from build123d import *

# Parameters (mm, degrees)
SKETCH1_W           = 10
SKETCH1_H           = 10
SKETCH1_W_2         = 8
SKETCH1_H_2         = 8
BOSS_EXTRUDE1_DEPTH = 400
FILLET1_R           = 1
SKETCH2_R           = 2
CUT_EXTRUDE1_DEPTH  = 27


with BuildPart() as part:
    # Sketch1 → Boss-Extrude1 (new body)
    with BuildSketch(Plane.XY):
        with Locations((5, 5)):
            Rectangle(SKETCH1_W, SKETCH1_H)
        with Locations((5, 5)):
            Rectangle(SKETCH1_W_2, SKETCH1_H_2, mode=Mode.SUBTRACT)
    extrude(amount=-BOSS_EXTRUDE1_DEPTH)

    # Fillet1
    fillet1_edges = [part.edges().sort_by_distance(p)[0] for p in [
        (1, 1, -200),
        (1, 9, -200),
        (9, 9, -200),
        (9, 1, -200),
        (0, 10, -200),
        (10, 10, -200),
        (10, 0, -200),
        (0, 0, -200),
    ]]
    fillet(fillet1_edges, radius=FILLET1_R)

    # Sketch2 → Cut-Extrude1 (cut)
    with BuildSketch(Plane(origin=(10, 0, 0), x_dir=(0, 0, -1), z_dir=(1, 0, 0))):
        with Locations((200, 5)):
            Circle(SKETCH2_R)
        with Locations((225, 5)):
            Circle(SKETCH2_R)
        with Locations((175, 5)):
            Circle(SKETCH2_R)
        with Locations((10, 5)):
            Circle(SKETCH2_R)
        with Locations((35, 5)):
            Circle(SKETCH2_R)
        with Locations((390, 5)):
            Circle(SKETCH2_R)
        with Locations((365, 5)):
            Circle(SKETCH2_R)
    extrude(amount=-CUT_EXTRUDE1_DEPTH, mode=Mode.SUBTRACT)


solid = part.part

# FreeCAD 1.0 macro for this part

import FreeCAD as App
import Part
import Sketcher

V = App.Vector
Q = App.Units.Quantity


def edges_at(feature, points):
    """Names of the edges that pass closest to the given points."""
    edges = feature.Shape.Edges
    near = lambda p: min(range(len(edges)), key=lambda i: edges[i].distToShape(Part.Vertex(*p))[0])
    return sorted({f"Edge{near(p) + 1}" for p in points})

doc = App.newDocument("Part")
body = doc.addObject("PartDesign::Body", "Body")

sketch1 = body.newObject("Sketcher::SketchObject", "Sketch")
sketch1.AttachmentSupport = (doc.getObject("XY_Plane"), [""])
sketch1.MapMode = "FlatFace"
sketch1.addGeometry([
    Part.LineSegment(V(0, 10, 0), V(0, 0, 0)),
    Part.LineSegment(V(0, 0, 0), V(10, 0, 0)),
    Part.LineSegment(V(10, 0, 0), V(10, 10, 0)),
    Part.LineSegment(V(10, 10, 0), V(0, 10, 0)),
    Part.LineSegment(V(9, 1, 0), V(1, 1, 0)),
    Part.LineSegment(V(1, 1, 0), V(1, 9, 0)),
    Part.LineSegment(V(1, 9, 0), V(9, 9, 0)),
    Part.LineSegment(V(9, 9, 0), V(9, 1, 0)),
], False)
sketch1.addConstraint([
    Sketcher.Constraint("Coincident", 0, 2, 1, 1),
    Sketcher.Constraint("Coincident", 1, 2, 2, 1),
    Sketcher.Constraint("Coincident", 2, 2, 3, 1),
    Sketcher.Constraint("Coincident", 3, 2, 0, 1),
    Sketcher.Constraint("Coincident", 4, 2, 5, 1),
    Sketcher.Constraint("Coincident", 5, 2, 6, 1),
    Sketcher.Constraint("Coincident", 6, 2, 7, 1),
    Sketcher.Constraint("Coincident", 7, 2, 4, 1),
    Sketcher.Constraint("Vertical", 0),
    Sketcher.Constraint("Horizontal", 1),
    Sketcher.Constraint("Vertical", 2),
    Sketcher.Constraint("Horizontal", 3),
    Sketcher.Constraint("Horizontal", 4),
    Sketcher.Constraint("Vertical", 5),
    Sketcher.Constraint("Horizontal", 6),
    Sketcher.Constraint("Vertical", 7),
    Sketcher.Constraint("Coincident", 0, 2, -1, 1),
    Sketcher.Constraint("Equal", 3, 0),
    Sketcher.Constraint("Equal", 6, 5),
    Sketcher.Constraint("DistanceX", 1, 1, 1, 2, Q("10 mm")),
    Sketcher.Constraint("DistanceX", 4, 2, 4, 1, Q("8 mm")),
    Sketcher.Constraint("DistanceX", -1, 1, 4, 2, Q("1 mm")),
    Sketcher.Constraint("DistanceY", -1, 1, 4, 2, Q("1 mm")),
])
pad1 = body.newObject("PartDesign::Pad", "Pad")
pad1.Profile = sketch1
pad1.Length = 400
pad1.Reversed = True
doc.recompute()

fillet = body.newObject("PartDesign::Fillet", "Fillet")
fillet.Base = (pad1, edges_at(pad1, [
    (1, 1, -200),
    (1, 9, -200),
    (9, 9, -200),
    (9, 1, -200),
    (0, 10, -200),
    (10, 10, -200),
    (10, 0, -200),
    (0, 0, -200),
]))
fillet.Radius = 1

sketch2 = body.newObject("Sketcher::SketchObject", "Sketch001")
sketch2.AttachmentSupport = (doc.getObject("YZ_Plane"), [""])
sketch2.MapMode = "FlatFace"
sketch2.AttachmentOffset = App.Placement(V(0, 0, 10), App.Rotation())
sketch2.addGeometry([
    Part.Circle(V(5, -200, 0), V(0, 0, 1), 2),
    Part.Circle(V(5, -225, 0), V(0, 0, 1), 2),
    Part.Circle(V(5, -175, 0), V(0, 0, 1), 2),
    Part.Circle(V(5, -10, 0), V(0, 0, 1), 2),
    Part.Circle(V(5, -35, 0), V(0, 0, 1), 2),
    Part.Circle(V(5, -390, 0), V(0, 0, 1), 2),
    Part.Circle(V(5, -365, 0), V(0, 0, 1), 2),
], False)
sketch2.addConstraint([
    Sketcher.Constraint("Equal", 0, 1),
    Sketcher.Constraint("Equal", 1, 2),
    Sketcher.Constraint("Equal", 2, 3),
    Sketcher.Constraint("Equal", 3, 4),
    Sketcher.Constraint("Equal", 4, 5),
    Sketcher.Constraint("Equal", 5, 6),
    Sketcher.Constraint("Vertical", 0, 3, 1, 3),
    Sketcher.Constraint("Vertical", 1, 3, 2, 3),
    Sketcher.Constraint("Vertical", 2, 3, 3, 3),
    Sketcher.Constraint("Vertical", 3, 3, 4, 3),
    Sketcher.Constraint("Vertical", 4, 3, 5, 3),
    Sketcher.Constraint("Vertical", 5, 3, 6, 3),
    Sketcher.Constraint("Diameter", 0, Q("4 mm")),
    Sketcher.Constraint("DistanceX", -1, 1, 0, 3, Q("5 mm")),
    Sketcher.Constraint("DistanceY", 0, 3, -1, 1, Q("200 mm")),
    Sketcher.Constraint("DistanceY", 1, 3, -1, 1, Q("225 mm")),
    Sketcher.Constraint("DistanceY", 2, 3, -1, 1, Q("175 mm")),
    Sketcher.Constraint("DistanceY", 3, 3, -1, 1, Q("10 mm")),
    Sketcher.Constraint("DistanceY", 4, 3, -1, 1, Q("35 mm")),
    Sketcher.Constraint("DistanceY", 5, 3, -1, 1, Q("390 mm")),
    Sketcher.Constraint("DistanceY", 6, 3, -1, 1, Q("365 mm")),
])
pocket1 = body.newObject("PartDesign::Pocket", "Pocket")
pocket1.Profile = sketch2
pocket1.Length = 27

doc.recompute()
